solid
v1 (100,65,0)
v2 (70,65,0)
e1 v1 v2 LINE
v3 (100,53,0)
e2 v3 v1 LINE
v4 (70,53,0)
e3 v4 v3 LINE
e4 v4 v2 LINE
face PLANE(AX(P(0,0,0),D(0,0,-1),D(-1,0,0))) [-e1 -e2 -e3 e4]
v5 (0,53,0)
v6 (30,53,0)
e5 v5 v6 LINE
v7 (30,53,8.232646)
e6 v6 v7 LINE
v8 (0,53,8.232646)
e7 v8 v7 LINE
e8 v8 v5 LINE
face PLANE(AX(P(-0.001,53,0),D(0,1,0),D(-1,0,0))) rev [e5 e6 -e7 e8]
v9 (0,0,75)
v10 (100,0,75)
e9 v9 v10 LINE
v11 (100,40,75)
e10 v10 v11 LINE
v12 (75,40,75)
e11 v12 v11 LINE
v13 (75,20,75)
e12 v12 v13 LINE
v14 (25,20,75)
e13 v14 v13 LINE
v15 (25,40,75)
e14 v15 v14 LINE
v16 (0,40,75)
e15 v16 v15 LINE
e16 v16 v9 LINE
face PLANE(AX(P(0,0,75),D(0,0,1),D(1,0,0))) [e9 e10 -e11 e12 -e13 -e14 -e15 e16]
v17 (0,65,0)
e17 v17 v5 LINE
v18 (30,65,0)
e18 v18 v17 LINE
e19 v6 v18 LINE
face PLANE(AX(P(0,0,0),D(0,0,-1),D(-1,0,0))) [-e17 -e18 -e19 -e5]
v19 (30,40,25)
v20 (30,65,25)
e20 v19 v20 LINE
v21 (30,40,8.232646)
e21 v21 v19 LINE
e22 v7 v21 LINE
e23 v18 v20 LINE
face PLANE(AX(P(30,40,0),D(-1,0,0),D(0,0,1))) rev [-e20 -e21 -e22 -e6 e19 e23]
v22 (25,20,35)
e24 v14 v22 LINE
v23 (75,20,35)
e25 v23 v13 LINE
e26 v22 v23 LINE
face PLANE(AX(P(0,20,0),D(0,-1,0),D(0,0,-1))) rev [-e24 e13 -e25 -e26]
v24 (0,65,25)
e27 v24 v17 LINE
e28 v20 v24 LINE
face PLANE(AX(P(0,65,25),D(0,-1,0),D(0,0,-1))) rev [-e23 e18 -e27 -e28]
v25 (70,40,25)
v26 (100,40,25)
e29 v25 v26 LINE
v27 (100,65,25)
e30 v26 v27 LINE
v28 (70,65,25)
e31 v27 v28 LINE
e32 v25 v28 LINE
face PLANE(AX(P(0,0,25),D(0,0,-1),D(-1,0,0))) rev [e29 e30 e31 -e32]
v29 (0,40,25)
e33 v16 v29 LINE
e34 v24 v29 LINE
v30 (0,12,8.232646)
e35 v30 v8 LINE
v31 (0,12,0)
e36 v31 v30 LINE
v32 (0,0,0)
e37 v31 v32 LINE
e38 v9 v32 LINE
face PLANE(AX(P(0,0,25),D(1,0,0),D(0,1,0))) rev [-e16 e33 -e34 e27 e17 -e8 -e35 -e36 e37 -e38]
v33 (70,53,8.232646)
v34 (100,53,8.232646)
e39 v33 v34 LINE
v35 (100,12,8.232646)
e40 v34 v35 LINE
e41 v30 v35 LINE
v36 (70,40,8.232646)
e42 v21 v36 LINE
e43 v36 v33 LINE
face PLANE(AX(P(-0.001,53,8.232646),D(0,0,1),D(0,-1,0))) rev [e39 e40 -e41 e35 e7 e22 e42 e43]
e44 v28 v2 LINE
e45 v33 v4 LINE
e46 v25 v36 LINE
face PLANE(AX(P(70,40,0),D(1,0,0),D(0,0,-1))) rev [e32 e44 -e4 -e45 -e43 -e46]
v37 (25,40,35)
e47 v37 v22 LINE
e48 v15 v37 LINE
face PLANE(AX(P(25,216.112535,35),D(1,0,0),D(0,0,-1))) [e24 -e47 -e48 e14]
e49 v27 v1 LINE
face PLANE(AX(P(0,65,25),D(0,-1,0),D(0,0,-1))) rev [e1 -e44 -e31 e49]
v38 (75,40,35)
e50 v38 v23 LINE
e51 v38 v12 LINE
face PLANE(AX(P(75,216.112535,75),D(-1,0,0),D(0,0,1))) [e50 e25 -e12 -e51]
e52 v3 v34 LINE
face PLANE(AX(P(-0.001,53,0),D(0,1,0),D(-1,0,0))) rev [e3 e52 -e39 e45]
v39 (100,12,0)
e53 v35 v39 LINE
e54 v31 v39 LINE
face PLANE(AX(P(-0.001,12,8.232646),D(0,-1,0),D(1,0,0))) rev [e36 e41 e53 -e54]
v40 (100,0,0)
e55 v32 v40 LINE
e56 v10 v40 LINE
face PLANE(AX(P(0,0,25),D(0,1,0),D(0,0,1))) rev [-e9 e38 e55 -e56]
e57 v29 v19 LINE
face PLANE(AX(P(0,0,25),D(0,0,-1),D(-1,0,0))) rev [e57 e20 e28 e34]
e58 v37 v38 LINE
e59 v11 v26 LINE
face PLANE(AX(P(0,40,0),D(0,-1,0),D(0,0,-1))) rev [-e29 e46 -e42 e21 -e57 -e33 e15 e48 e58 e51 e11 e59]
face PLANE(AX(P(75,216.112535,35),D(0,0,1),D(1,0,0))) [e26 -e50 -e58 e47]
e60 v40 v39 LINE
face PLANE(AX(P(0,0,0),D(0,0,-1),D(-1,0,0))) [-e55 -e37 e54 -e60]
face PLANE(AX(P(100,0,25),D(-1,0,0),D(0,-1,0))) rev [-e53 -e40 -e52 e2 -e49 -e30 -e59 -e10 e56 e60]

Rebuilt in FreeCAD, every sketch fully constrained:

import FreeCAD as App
import Part
import Sketcher
Q = App.Units.Quantity

doc = App.newDocument("Part")
body = doc.addObject("PartDesign::Body", "Body")

sketch1 = body.newObject("Sketcher::SketchObject", "Sketch")
sketch1.AttachmentSupport = (doc.getObject("XY_Plane"), [""])
sketch1.MapMode = "FlatFace"
sketch1.addGeometry(Part.LineSegment(App.Vector(0, 65, 0), App.Vector(0, 0, 0)), False)
sketch1.addGeometry(Part.LineSegment(App.Vector(0, 0, 0), App.Vector(100, 0, 0)), False)
sketch1.addGeometry(Part.LineSegment(App.Vector(100, 0, 0), App.Vector(100, 65, 0)), False)
sketch1.addGeometry(Part.LineSegment(App.Vector(100, 65, 0), App.Vector(0, 65, 0)), False)
sketch1.addConstraint(Sketcher.Constraint("Coincident", 0, 2, 1, 1))
sketch1.addConstraint(Sketcher.Constraint("Coincident", 1, 2, 2, 1))
sketch1.addConstraint(Sketcher.Constraint("Coincident", 2, 2, 3, 1))
sketch1.addConstraint(Sketcher.Constraint("Coincident", 3, 2, 0, 1))
sketch1.addConstraint(Sketcher.Constraint("Vertical", 0))
sketch1.addConstraint(Sketcher.Constraint("Horizontal", 1))
sketch1.addConstraint(Sketcher.Constraint("Vertical", 2))
sketch1.addConstraint(Sketcher.Constraint("Horizontal", 3))
sketch1.addConstraint(Sketcher.Constraint("Coincident", 0, 2, -1, 1))
sketch1.addConstraint(Sketcher.Constraint("DistanceX", 1, 1, 1, 2, Q("100 mm")))
sketch1.addConstraint(Sketcher.Constraint("DistanceY", 0, 2, 0, 1, Q("65 mm")))
pad1 = body.newObject("PartDesign::Pad", "Pad")
pad1.Profile = sketch1
pad1.Length = 25

sketch2 = body.newObject("Sketcher::SketchObject", "Sketch001")
sketch2.AttachmentSupport = (doc.getObject("YZ_Plane"), [""])
sketch2.MapMode = "FlatFace"
sketch2.AttachmentOffset = App.Placement(App.Vector(0, 0, 100), App.Rotation())
sketch2.addGeometry(Part.LineSegment(App.Vector(53, 8, 0), App.Vector(12, 8, 0)), False)
sketch2.addGeometry(Part.LineSegment(App.Vector(12, 8, 0), App.Vector(12, 0, 0)), False)
sketch2.addGeometry(Part.LineSegment(App.Vector(12, 0, 0), App.Vector(53, 0, 0)), False)
sketch2.addGeometry(Part.LineSegment(App.Vector(53, 0, 0), App.Vector(53, 8, 0)), False)
sketch2.addConstraint(Sketcher.Constraint("Coincident", 0, 2, 1, 1))
sketch2.addConstraint(Sketcher.Constraint("Coincident", 1, 2, 2, 1))
sketch2.addConstraint(Sketcher.Constraint("Coincident", 2, 2, 3, 1))
sketch2.addConstraint(Sketcher.Constraint("Coincident", 3, 2, 0, 1))
sketch2.addConstraint(Sketcher.Constraint("Horizontal", 0))
sketch2.addConstraint(Sketcher.Constraint("Vertical", 1))
sketch2.addConstraint(Sketcher.Constraint("Horizontal", 2))
sketch2.addConstraint(Sketcher.Constraint("Vertical", 3))
sketch2.addConstraint(Sketcher.Constraint("PointOnObject", 1, 2, -1))
sketch2.addConstraint(Sketcher.Constraint("DistanceX", 0, 2, 0, 1, Q("41 mm")))
sketch2.addConstraint(Sketcher.Constraint("DistanceX", -1, 1, 0, 2, Q("12 mm")))
sketch2.addConstraint(Sketcher.Constraint("DistanceY", 1, 2, 1, 1, Q("8.232646 mm")))
pocket1 = body.newObject("PartDesign::Pocket", "Pocket")
pocket1.Profile = sketch2
pocket1.Type = "UpToFirst"

sketch3 = body.newObject("Sketcher::SketchObject", "Sketch002")
sketch3.AttachmentSupport = (doc.getObject("XZ_Plane"), [""])
sketch3.MapMode = "FlatFace"
sketch3.AttachmentOffset = App.Placement(App.Vector(0, 0, -65), App.Rotation())
sketch3.addGeometry(Part.LineSegment(App.Vector(30, 0, 0), App.Vector(30, 25, 0)), False)
sketch3.addGeometry(Part.LineSegment(App.Vector(30, 25, 0), App.Vector(70, 25, 0)), False)
sketch3.addGeometry(Part.LineSegment(App.Vector(70, 25, 0), App.Vector(70, 0, 0)), False)
sketch3.addGeometry(Part.LineSegment(App.Vector(70, 0, 0), App.Vector(30, 0, 0)), False)
sketch3.addConstraint(Sketcher.Constraint("Coincident", 0, 2, 1, 1))
sketch3.addConstraint(Sketcher.Constraint("Coincident", 1, 2, 2, 1))
sketch3.addConstraint(Sketcher.Constraint("Coincident", 2, 2, 3, 1))
sketch3.addConstraint(Sketcher.Constraint("Coincident", 3, 2, 0, 1))
sketch3.addConstraint(Sketcher.Constraint("Vertical", 0))
sketch3.addConstraint(Sketcher.Constraint("Horizontal", 1))
sketch3.addConstraint(Sketcher.Constraint("Vertical", 2))
sketch3.addConstraint(Sketcher.Constraint("Horizontal", 3))
sketch3.addConstraint(Sketcher.Constraint("PointOnObject", 2, 2, -1))
sketch3.addConstraint(Sketcher.Constraint("DistanceX", 1, 1, 1, 2, Q("40 mm")))
sketch3.addConstraint(Sketcher.Constraint("DistanceY", 0, 1, 0, 2, Q("25 mm")))
sketch3.addConstraint(Sketcher.Constraint("DistanceX", -1, 1, 0, 2, Q("30 mm")))
pocket2 = body.newObject("PartDesign::Pocket", "Pocket001")
pocket2.Profile = sketch3
pocket2.Length = 25
pocket2.Reversed = True

sketch4 = body.newObject("Sketcher::SketchObject", "Sketch003")
sketch4.AttachmentSupport = (doc.getObject("XY_Plane"), [""])
sketch4.MapMode = "FlatFace"
sketch4.AttachmentOffset = App.Placement(App.Vector(0, 0, 25), App.Rotation())
sketch4.addGeometry(Part.LineSegment(App.Vector(0, 40, 0), App.Vector(0, 0, 0)), False)
sketch4.addGeometry(Part.LineSegment(App.Vector(0, 0, 0), App.Vector(100, 0, 0)), False)
sketch4.addGeometry(Part.LineSegment(App.Vector(100, 0, 0), App.Vector(100, 40, 0)), False)
sketch4.addGeometry(Part.LineSegment(App.Vector(100, 40, 0), App.Vector(0, 40, 0)), False)
sketch4.addConstraint(Sketcher.Constraint("Coincident", 0, 2, 1, 1))
sketch4.addConstraint(Sketcher.Constraint("Coincident", 1, 2, 2, 1))
sketch4.addConstraint(Sketcher.Constraint("Coincident", 2, 2, 3, 1))
sketch4.addConstraint(Sketcher.Constraint("Coincident", 3, 2, 0, 1))
sketch4.addConstraint(Sketcher.Constraint("Vertical", 0))
sketch4.addConstraint(Sketcher.Constraint("Horizontal", 1))
sketch4.addConstraint(Sketcher.Constraint("Vertical", 2))
sketch4.addConstraint(Sketcher.Constraint("Horizontal", 3))
sketch4.addConstraint(Sketcher.Constraint("Coincident", 0, 2, -1, 1))
sketch4.addConstraint(Sketcher.Constraint("DistanceX", 1, 1, 1, 2, Q("100 mm")))
sketch4.addConstraint(Sketcher.Constraint("DistanceY", 0, 2, 0, 1, Q("40 mm")))
pad2 = body.newObject("PartDesign::Pad", "Pad001")
pad2.Profile = sketch4
pad2.Length = 50

sketch5 = body.newObject("Sketcher::SketchObject", "Sketch004")
sketch5.AttachmentSupport = (doc.getObject("XZ_Plane"), [""])
sketch5.MapMode = "FlatFace"
sketch5.AttachmentOffset = App.Placement(App.Vector(0, 0, -40), App.Rotation())
sketch5.addGeometry(Part.LineSegment(App.Vector(75, 35, 0), App.Vector(25, 35, 0)), False)
sketch5.addGeometry(Part.LineSegment(App.Vector(25, 35, 0), App.Vector(25, 741, 0)), False)
sketch5.addGeometry(Part.LineSegment(App.Vector(25, 741, 0), App.Vector(75, 741, 0)), False)
sketch5.addGeometry(Part.LineSegment(App.Vector(75, 741, 0), App.Vector(75, 35, 0)), False)
sketch5.addConstraint(Sketcher.Constraint("Coincident", 0, 2, 1, 1))
sketch5.addConstraint(Sketcher.Constraint("Coincident", 1, 2, 2, 1))
sketch5.addConstraint(Sketcher.Constraint("Coincident", 2, 2, 3, 1))
sketch5.addConstraint(Sketcher.Constraint("Coincident", 3, 2, 0, 1))
sketch5.addConstraint(Sketcher.Constraint("Horizontal", 0))
sketch5.addConstraint(Sketcher.Constraint("Vertical", 1))
sketch5.addConstraint(Sketcher.Constraint("Horizontal", 2))
sketch5.addConstraint(Sketcher.Constraint("Vertical", 3))
sketch5.addConstraint(Sketcher.Constraint("DistanceX", 0, 2, 0, 1, Q("50 mm")))
sketch5.addConstraint(Sketcher.Constraint("DistanceX", -1, 1, 0, 2, Q("25 mm")))
sketch5.addConstraint(Sketcher.Constraint("DistanceY", -1, 1, 0, 2, Q("35 mm")))
sketch5.addConstraint(Sketcher.Constraint("DistanceY", 1, 1, 1, 2, Q("706.396103 mm")))
pocket3 = body.newObject("PartDesign::Pocket", "Pocket002")
pocket3.Profile = sketch5
pocket3.Type = "TwoLengths"
pocket3.Length = 132.244047
pocket3.Length2 = 20

doc.recompute()
